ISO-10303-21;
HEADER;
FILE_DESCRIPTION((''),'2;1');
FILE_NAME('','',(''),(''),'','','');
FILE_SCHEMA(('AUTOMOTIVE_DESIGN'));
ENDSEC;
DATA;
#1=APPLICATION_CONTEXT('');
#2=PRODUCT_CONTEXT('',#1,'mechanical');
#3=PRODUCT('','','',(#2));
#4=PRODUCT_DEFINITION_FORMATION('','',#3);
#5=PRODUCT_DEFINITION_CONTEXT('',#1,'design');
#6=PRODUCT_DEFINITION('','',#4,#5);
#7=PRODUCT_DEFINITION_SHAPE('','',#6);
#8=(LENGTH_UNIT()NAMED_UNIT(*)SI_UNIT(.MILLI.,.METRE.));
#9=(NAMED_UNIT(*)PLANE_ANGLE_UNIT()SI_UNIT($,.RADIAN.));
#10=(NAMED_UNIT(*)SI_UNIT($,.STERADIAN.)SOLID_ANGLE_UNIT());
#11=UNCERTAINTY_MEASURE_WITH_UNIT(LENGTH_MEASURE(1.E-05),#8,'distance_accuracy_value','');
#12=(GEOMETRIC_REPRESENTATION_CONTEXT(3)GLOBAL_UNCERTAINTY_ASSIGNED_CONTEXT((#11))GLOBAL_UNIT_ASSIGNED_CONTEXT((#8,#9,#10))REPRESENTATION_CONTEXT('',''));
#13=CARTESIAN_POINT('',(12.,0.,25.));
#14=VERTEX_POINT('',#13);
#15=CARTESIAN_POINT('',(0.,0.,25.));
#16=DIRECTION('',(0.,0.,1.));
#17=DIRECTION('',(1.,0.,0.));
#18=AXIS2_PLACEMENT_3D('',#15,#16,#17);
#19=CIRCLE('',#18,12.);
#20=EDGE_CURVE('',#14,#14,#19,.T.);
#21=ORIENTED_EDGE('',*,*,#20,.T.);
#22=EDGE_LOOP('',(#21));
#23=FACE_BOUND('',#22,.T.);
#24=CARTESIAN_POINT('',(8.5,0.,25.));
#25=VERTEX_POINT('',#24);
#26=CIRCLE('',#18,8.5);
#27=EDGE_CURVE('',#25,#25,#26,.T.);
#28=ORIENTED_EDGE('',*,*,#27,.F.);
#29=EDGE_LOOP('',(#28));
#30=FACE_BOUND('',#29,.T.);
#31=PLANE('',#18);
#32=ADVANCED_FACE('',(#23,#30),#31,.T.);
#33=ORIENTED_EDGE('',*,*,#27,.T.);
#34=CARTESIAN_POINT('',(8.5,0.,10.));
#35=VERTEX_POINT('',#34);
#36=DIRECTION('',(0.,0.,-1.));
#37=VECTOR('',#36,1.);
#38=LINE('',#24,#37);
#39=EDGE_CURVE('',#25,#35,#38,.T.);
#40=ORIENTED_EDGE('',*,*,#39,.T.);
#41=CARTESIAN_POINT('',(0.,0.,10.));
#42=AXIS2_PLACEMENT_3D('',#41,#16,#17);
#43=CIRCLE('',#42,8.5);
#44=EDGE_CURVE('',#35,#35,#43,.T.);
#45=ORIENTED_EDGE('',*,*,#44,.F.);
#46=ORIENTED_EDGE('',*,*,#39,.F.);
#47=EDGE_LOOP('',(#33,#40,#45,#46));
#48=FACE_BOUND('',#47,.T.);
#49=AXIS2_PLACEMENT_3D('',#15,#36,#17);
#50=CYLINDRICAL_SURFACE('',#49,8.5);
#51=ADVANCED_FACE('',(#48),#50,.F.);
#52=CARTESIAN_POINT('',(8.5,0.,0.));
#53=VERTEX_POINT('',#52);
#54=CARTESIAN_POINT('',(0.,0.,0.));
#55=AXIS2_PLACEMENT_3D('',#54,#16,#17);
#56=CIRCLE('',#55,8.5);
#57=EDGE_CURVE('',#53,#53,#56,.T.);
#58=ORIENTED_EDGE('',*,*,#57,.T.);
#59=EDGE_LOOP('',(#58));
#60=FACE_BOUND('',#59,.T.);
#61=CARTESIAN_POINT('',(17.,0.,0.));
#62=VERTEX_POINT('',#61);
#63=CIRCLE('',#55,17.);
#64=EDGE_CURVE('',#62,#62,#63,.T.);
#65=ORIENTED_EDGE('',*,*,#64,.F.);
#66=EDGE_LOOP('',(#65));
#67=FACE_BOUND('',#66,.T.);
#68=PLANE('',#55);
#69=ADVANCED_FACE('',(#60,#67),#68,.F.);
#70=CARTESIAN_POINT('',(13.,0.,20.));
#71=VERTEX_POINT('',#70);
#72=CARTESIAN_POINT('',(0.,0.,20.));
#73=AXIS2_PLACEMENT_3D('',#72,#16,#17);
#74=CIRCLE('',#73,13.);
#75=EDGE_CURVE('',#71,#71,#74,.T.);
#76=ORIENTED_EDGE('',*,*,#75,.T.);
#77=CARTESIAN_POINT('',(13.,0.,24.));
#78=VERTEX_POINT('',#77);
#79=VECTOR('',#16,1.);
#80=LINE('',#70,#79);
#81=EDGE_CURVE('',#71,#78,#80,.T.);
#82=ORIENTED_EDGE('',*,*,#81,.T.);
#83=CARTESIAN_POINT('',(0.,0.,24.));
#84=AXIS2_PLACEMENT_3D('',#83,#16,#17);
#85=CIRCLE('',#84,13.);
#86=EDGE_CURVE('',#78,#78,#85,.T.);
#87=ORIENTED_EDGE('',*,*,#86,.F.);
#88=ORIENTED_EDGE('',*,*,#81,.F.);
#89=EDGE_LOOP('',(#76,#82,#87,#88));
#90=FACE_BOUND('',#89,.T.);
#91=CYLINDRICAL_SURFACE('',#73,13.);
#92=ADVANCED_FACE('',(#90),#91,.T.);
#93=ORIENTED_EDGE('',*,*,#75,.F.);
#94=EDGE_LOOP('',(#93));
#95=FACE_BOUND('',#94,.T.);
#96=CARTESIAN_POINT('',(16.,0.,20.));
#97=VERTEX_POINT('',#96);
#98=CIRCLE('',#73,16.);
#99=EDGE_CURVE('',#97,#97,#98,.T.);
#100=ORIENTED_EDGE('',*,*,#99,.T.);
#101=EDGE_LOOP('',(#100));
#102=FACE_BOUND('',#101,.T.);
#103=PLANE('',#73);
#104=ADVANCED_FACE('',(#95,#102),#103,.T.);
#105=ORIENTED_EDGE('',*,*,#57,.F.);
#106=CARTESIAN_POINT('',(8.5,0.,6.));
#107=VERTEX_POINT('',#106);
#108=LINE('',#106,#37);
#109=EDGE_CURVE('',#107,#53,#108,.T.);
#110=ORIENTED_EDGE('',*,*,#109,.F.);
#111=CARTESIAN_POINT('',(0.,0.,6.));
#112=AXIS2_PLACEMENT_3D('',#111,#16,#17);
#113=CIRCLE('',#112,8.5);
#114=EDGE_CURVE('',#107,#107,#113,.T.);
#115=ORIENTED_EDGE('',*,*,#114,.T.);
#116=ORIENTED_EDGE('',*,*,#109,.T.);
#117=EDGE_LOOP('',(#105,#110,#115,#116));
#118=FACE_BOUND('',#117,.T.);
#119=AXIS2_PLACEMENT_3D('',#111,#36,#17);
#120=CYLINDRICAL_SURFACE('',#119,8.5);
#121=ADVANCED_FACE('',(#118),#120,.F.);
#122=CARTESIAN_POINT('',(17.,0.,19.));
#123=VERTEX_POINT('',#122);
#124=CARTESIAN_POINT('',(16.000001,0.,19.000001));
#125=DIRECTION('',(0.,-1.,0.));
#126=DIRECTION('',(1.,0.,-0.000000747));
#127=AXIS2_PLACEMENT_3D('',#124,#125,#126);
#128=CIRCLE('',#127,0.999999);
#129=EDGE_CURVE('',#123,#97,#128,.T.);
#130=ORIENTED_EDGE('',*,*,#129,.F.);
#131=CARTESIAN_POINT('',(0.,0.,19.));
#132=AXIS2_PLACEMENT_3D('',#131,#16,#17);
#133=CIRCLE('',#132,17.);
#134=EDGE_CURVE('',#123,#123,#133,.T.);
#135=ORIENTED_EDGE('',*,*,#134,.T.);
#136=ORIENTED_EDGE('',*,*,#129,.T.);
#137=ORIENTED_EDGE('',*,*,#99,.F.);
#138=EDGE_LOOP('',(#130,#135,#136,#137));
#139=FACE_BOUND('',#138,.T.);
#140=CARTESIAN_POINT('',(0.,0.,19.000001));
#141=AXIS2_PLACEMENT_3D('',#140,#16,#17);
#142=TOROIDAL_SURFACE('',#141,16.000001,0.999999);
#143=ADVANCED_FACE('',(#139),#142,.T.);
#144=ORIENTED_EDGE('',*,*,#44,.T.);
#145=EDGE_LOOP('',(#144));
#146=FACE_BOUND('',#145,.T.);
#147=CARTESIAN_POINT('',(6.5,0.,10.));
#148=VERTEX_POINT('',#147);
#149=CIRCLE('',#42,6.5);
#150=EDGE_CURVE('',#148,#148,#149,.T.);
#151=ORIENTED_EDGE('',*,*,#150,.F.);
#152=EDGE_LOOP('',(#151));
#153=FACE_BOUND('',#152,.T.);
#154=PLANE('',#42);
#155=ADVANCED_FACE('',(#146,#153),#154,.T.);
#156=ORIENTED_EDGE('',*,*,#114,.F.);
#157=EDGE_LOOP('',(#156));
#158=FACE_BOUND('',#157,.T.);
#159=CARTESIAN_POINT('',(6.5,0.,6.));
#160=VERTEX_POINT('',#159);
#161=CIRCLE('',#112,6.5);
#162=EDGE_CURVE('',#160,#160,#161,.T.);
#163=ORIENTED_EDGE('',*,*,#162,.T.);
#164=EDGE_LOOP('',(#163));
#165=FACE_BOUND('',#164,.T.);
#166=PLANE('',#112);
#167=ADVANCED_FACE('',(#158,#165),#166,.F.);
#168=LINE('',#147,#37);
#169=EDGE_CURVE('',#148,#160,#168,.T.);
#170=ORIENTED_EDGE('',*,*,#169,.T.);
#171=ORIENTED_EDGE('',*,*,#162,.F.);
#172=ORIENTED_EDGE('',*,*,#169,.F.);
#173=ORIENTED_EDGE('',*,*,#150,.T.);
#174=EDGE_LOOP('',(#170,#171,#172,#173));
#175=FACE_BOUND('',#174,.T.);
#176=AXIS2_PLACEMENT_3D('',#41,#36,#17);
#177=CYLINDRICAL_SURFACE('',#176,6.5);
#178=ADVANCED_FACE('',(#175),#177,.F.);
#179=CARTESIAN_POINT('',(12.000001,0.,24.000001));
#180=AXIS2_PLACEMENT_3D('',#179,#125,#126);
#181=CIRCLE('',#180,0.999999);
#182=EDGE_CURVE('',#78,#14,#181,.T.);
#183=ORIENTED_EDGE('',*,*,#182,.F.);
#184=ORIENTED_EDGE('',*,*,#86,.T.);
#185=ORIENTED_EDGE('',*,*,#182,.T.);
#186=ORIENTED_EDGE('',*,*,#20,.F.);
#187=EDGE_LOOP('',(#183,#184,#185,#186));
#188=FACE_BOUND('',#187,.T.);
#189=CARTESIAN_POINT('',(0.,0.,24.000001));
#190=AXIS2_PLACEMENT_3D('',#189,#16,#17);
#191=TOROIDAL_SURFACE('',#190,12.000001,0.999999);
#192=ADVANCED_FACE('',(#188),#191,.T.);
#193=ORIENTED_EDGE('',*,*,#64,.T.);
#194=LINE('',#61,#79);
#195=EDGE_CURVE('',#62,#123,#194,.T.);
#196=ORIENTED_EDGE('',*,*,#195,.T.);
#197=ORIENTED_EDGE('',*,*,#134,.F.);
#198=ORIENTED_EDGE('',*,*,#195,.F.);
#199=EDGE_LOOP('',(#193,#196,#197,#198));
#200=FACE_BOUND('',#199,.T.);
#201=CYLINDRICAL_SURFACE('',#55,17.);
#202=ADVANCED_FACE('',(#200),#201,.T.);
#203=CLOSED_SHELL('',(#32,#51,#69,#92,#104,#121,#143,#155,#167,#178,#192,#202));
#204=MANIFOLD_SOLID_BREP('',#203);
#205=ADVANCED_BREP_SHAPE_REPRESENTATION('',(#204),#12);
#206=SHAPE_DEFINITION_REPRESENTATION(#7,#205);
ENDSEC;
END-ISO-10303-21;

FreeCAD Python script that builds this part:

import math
import FreeCAD as App
import Part
import Sketcher

V = App.Vector
Q = App.Units.Quantity

doc = App.newDocument("Part")
body = doc.addObject("PartDesign::Body", "Body")

# Sketch on XZ plane
sketch1 = body.newObject("Sketcher::SketchObject", "Sketch")
sketch1.AttachmentSupport = (doc.getObject("XZ_Plane"), [""])
sketch1.MapMode = "FlatFace"
sketch1.addGeometry(Part.LineSegment(V(8.5, 0, 0), V(17, 0, 0)), False)
sketch1.addGeometry(Part.LineSegment(V(17, 0, 0), V(17, 19, 0)), False)
sketch1.addGeometry(Part.ArcOfCircle(Part.Circle(V(16.000001, 19.000001, 0), V(0, 0, 1), 0.999999), math.radians(-0.000043), math.radians(90.000043)), False)
sketch1.addGeometry(Part.LineSegment(V(16, 20, 0), V(13, 20, 0)), False)
sketch1.addGeometry(Part.LineSegment(V(13, 20, 0), V(13, 24, 0)), False)
sketch1.addGeometry(Part.ArcOfCircle(Part.Circle(V(12.000001, 24.000001, 0), V(0, 0, 1), 0.999999), math.radians(-0.000043), math.radians(90.000043)), False)
sketch1.addGeometry(Part.LineSegment(V(12, 25, 0), V(8.5, 25, 0)), False)
sketch1.addGeometry(Part.LineSegment(V(8.5, 25, 0), V(8.5, 10, 0)), False)
sketch1.addGeometry(Part.LineSegment(V(8.5, 10, 0), V(6.5, 10, 0)), False)
sketch1.addGeometry(Part.LineSegment(V(6.5, 10, 0), V(6.5, 6, 0)), False)
sketch1.addGeometry(Part.LineSegment(V(6.5, 6, 0), V(8.5, 6, 0)), False)
sketch1.addGeometry(Part.LineSegment(V(8.5, 6, 0), V(8.5, 0, 0)), False)
sketch1.addConstraint(Sketcher.Constraint("Coincident", 0, 2, 1, 1))
sketch1.addConstraint(Sketcher.Constraint("Tangent", 1, 2, 2, 1))
sketch1.addConstraint(Sketcher.Constraint("Tangent", 2, 2, 3, 1))
sketch1.addConstraint(Sketcher.Constraint("Coincident", 3, 2, 4, 1))
sketch1.addConstraint(Sketcher.Constraint("Tangent", 4, 2, 5, 1))
sketch1.addConstraint(Sketcher.Constraint("Tangent", 5, 2, 6, 1))
sketch1.addConstraint(Sketcher.Constraint("Coincident", 6, 2, 7, 1))
sketch1.addConstraint(Sketcher.Constraint("Coincident", 7, 2, 8, 1))
sketch1.addConstraint(Sketcher.Constraint("Coincident", 8, 2, 9, 1))
sketch1.addConstraint(Sketcher.Constraint("Coincident", 9, 2, 10, 1))
sketch1.addConstraint(Sketcher.Constraint("Coincident", 10, 2, 11, 1))
sketch1.addConstraint(Sketcher.Constraint("Coincident", 11, 2, 0, 1))
sketch1.addConstraint(Sketcher.Constraint("Horizontal", 0))
sketch1.addConstraint(Sketcher.Constraint("Vertical", 1))
sketch1.addConstraint(Sketcher.Constraint("Horizontal", 3))
sketch1.addConstraint(Sketcher.Constraint("Vertical", 4))
sketch1.addConstraint(Sketcher.Constraint("Horizontal", 6))
sketch1.addConstraint(Sketcher.Constraint("Vertical", 7))
sketch1.addConstraint(Sketcher.Constraint("Horizontal", 8))
sketch1.addConstraint(Sketcher.Constraint("Vertical", 9))
sketch1.addConstraint(Sketcher.Constraint("Horizontal", 10))
sketch1.addConstraint(Sketcher.Constraint("Vertical", 11))
sketch1.addConstraint(Sketcher.Constraint("Equal", 2, 5))
sketch1.addConstraint(Sketcher.Constraint("PointOnObject", 0, 2, -1))
sketch1.addConstraint(Sketcher.Constraint("Vertical", 7, 2, 10, 2))
sketch1.addConstraint(Sketcher.Constraint("Equal", 4, 9))
sketch1.addConstraint(Sketcher.Constraint("Radius", 2, Q("0.999999 mm")))
sketch1.addConstraint(Sketcher.Constraint("DistanceX", 3, 2, 3, 1, Q("3 mm")))
sketch1.addConstraint(Sketcher.Constraint("DistanceX", 8, 2, 8, 1, Q("2 mm")))
sketch1.addConstraint(Sketcher.Constraint("DistanceY", 1, 1, 1, 2, Q("19 mm")))
sketch1.addConstraint(Sketcher.Constraint("DistanceY", 4, 1, 4, 2, Q("4 mm")))
sketch1.addConstraint(Sketcher.Constraint("DistanceY", 7, 2, 7, 1, Q("15 mm")))
sketch1.addConstraint(Sketcher.Constraint("DistanceX", 0, 1, 0, 2, Q("8.5 mm")))
sketch1.addConstraint(Sketcher.Constraint("DistanceX", -1, 1, 2, 3, Q("16.000001 mm")))
revolution = body.newObject("PartDesign::Revolution", "Revolution")
revolution.Profile = sketch1
revolution.ReferenceAxis = (sketch1, ["V_Axis"])
revolution.Angle = 360

doc.recompute()
